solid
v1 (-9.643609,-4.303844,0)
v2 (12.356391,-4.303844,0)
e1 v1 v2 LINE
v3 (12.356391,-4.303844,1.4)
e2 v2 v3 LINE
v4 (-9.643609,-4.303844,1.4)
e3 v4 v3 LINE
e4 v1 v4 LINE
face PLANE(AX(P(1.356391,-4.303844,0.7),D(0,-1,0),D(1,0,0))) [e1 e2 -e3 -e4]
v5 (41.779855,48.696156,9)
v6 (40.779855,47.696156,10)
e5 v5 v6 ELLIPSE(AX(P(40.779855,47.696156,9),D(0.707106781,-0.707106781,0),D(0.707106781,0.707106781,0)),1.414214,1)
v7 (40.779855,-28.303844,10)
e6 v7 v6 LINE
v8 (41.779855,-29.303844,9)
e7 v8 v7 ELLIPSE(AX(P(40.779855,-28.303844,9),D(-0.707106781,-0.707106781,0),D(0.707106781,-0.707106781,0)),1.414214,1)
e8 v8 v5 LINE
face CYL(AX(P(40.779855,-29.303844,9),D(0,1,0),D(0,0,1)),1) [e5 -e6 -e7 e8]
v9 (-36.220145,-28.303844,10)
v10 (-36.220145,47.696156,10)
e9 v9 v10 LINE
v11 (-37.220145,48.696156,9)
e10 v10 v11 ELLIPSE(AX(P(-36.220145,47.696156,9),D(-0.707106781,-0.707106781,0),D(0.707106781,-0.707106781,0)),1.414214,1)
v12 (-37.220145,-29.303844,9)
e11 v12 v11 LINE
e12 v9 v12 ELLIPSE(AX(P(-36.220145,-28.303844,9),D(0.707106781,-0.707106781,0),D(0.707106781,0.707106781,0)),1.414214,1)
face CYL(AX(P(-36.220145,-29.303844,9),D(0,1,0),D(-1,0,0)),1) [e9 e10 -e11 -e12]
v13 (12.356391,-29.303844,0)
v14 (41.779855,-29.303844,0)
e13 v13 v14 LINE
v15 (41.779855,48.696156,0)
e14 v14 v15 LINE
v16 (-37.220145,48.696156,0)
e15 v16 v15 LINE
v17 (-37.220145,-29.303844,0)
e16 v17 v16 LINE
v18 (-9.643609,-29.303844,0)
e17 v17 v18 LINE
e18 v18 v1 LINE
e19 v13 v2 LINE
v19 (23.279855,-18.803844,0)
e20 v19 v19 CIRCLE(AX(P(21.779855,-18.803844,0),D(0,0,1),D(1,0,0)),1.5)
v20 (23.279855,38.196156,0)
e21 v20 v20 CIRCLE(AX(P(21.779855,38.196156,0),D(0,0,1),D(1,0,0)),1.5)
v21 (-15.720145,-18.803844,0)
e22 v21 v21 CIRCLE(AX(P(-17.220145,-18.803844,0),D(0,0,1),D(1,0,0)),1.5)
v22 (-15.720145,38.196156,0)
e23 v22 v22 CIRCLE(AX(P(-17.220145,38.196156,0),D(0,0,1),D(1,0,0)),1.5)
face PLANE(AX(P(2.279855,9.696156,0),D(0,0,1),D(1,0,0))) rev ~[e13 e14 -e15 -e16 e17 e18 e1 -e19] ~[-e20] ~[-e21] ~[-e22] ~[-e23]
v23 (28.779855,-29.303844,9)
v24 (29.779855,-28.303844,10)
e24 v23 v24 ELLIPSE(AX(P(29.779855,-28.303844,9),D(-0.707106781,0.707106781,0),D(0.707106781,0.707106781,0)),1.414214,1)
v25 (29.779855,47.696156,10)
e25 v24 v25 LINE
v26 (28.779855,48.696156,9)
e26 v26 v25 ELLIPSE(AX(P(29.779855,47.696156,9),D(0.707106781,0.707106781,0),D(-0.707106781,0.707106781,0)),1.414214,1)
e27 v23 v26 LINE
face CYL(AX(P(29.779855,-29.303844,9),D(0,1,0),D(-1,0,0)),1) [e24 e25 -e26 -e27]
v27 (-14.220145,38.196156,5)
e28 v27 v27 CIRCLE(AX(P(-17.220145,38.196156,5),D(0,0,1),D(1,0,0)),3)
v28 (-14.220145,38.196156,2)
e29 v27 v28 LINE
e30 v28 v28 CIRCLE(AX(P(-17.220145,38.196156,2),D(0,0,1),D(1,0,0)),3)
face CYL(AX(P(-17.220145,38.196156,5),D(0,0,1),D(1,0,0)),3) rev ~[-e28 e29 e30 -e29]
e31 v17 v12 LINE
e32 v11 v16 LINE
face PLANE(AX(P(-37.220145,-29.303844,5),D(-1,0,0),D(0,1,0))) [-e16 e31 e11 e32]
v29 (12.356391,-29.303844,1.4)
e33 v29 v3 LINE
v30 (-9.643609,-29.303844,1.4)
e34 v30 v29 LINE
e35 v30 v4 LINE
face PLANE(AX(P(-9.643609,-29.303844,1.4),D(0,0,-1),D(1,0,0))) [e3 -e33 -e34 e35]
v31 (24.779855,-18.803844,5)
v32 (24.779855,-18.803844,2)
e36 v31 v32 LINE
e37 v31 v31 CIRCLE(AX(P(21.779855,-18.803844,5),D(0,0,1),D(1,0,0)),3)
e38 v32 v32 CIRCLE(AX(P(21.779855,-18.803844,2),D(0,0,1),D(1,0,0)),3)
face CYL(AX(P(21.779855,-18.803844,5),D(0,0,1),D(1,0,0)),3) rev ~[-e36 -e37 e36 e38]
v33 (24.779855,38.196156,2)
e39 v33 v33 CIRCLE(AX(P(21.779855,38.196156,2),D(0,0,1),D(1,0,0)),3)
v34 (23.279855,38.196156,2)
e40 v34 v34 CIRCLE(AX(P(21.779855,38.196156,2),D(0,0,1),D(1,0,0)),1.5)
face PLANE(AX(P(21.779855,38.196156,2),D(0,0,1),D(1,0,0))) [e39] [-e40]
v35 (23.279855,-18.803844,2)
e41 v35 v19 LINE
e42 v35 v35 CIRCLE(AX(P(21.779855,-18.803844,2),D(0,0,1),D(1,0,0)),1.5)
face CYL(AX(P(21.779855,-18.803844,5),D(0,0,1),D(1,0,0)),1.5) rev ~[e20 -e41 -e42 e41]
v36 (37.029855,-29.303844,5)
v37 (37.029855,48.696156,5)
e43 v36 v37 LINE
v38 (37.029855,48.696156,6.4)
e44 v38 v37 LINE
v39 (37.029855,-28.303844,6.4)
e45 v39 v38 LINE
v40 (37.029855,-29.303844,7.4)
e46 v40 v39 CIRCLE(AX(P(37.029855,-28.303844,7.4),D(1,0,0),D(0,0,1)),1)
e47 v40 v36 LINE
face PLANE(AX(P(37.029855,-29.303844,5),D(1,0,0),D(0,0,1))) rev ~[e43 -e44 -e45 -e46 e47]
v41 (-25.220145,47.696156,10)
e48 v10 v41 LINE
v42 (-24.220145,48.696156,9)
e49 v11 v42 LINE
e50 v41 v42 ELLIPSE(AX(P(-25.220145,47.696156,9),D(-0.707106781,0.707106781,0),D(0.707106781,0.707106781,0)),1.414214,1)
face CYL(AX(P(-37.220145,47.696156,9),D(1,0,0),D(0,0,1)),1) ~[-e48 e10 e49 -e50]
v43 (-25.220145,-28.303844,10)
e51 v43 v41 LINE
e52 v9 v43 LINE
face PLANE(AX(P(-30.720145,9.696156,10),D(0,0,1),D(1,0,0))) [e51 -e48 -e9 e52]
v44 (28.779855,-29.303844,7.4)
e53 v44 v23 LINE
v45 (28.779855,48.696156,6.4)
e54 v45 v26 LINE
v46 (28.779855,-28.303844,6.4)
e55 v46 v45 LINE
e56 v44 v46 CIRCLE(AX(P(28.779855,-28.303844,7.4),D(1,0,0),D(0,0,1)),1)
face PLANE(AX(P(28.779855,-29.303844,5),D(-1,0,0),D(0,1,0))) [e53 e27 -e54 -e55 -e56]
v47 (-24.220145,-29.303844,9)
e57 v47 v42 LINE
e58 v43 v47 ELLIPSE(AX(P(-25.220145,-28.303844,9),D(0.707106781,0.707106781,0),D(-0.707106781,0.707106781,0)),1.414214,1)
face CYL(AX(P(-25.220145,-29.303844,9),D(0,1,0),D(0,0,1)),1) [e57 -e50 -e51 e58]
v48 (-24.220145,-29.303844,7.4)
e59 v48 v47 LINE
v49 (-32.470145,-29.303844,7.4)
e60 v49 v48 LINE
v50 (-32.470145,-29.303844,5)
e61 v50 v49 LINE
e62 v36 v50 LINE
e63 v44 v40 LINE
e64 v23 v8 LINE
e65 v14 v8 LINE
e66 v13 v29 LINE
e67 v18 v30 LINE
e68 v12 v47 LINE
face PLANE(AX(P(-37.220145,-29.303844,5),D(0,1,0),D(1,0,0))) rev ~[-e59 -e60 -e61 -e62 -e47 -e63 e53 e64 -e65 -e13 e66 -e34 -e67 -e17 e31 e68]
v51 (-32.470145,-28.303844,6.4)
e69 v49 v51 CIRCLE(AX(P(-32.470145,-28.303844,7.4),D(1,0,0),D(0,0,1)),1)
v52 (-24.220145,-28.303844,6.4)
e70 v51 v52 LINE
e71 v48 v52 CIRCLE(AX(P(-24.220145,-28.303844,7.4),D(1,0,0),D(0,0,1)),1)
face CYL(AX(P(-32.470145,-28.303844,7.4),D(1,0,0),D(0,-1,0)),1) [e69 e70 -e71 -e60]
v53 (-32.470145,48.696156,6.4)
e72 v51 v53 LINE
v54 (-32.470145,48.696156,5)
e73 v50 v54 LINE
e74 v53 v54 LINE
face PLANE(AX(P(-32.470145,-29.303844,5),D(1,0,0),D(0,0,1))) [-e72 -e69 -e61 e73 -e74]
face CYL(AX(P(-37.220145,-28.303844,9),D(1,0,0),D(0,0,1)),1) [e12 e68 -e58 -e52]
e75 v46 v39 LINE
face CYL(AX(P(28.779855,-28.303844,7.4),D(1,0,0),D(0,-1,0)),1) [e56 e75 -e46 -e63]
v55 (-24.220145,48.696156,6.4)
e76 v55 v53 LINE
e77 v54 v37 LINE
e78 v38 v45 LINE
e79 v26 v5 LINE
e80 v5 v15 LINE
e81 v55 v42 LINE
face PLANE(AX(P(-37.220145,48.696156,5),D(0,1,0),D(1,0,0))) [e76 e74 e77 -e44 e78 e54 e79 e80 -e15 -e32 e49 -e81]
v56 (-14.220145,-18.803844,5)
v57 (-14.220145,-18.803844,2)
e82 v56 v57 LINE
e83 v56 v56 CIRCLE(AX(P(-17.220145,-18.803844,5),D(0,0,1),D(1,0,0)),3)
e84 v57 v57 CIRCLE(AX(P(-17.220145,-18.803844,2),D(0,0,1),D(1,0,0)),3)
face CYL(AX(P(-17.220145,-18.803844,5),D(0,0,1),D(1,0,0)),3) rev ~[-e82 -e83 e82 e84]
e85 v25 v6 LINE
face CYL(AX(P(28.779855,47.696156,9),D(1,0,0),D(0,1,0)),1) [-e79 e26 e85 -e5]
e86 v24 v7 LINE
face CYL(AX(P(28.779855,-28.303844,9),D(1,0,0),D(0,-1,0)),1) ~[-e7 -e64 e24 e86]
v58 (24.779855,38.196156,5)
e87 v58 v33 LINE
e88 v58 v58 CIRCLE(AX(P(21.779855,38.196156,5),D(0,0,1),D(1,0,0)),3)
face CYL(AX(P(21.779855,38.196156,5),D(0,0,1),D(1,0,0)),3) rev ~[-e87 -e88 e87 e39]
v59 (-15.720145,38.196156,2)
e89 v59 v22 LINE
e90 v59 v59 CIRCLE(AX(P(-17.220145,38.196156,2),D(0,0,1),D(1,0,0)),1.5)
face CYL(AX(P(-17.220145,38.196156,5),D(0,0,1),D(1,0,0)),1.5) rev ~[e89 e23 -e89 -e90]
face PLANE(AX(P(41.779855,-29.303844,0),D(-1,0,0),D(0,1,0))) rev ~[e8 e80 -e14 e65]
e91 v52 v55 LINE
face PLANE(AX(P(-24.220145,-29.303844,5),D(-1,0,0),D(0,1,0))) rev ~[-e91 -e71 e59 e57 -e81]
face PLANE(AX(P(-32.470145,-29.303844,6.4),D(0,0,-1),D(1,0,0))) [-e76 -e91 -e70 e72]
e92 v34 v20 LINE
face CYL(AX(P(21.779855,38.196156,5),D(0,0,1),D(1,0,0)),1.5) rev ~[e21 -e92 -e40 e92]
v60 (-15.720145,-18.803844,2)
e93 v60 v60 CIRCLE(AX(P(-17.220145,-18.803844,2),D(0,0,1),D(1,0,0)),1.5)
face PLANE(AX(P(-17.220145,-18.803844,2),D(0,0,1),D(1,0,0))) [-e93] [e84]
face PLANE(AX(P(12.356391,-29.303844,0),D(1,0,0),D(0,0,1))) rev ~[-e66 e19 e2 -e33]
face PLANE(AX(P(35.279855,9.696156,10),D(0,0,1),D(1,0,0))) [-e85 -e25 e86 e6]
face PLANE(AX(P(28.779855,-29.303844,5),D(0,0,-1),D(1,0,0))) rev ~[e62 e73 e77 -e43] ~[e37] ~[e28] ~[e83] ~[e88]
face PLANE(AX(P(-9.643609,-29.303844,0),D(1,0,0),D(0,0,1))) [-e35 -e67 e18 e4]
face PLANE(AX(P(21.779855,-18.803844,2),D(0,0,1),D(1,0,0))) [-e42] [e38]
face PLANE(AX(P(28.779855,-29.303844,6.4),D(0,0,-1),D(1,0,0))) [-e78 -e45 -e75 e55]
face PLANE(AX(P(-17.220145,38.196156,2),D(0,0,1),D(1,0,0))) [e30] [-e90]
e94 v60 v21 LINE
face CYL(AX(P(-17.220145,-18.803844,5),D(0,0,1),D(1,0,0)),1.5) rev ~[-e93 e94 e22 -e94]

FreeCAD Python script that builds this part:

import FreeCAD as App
import Part
import Sketcher

V = App.Vector
Q = App.Units.Quantity


def edges_at(feature, points):
    """Names of the edges that pass closest to the given points."""
    edges = feature.Shape.Edges
    near = lambda p: min(range(len(edges)), key=lambda i: edges[i].distToShape(Part.Vertex(*p))[0])
    return sorted({f"Edge{near(p) + 1}" for p in points})

doc = App.newDocument("Part")
body = doc.addObject("PartDesign::Body", "Body")

# Sketch on XY plane
sketch1 = body.newObject("Sketcher::SketchObject", "Sketch")
sketch1.AttachmentSupport = (doc.getObject("XY_Plane"), [""])
sketch1.MapMode = "FlatFace"
sketch1.addGeometry([
    Part.LineSegment(V(-37, 49, 0), V(-37, -29, 0)),
    Part.LineSegment(V(-37, -29, 0), V(42, -29, 0)),
    Part.LineSegment(V(42, -29, 0), V(42, 49, 0)),
    Part.LineSegment(V(42, 49, 0), V(-37, 49, 0)),
], False)
sketch1.addConstraint([
    Sketcher.Constraint("Coincident", 0, 2, 1, 1),
    Sketcher.Constraint("Coincident", 1, 2, 2, 1),
    Sketcher.Constraint("Coincident", 2, 2, 3, 1),
    Sketcher.Constraint("Coincident", 3, 2, 0, 1),
    Sketcher.Constraint("Vertical", 0),
    Sketcher.Constraint("Horizontal", 1),
    Sketcher.Constraint("Vertical", 2),
    Sketcher.Constraint("Horizontal", 3),
    Sketcher.Constraint("DistanceX", 1, 1, 1, 2, Q("79 mm")),
    Sketcher.Constraint("DistanceY", 0, 2, 0, 1, Q("78 mm")),
    Sketcher.Constraint("DistanceX", 0, 2, -1, 1, Q("37.220145 mm")),
    Sketcher.Constraint("DistanceY", 0, 2, -1, 1, Q("29.303844 mm")),
])
pad1 = body.newObject("PartDesign::Pad", "Pad")
pad1.Profile = sketch1
pad1.Length = 5

# Sketch on XY plane
sketch2 = body.newObject("Sketcher::SketchObject", "Sketch001")
sketch2.AttachmentSupport = (doc.getObject("XY_Plane"), [""])
sketch2.MapMode = "FlatFace"
sketch2.AttachmentOffset = App.Placement(V(0, 0, 5), App.Rotation())
sketch2.addGeometry([
    Part.LineSegment(V(-37, 49, 0), V(-37, -29, 0)),  # 0
    Part.LineSegment(V(-37, -29, 0), V(-24, -29, 0)),  # 1
    Part.LineSegment(V(-24, -29, 0), V(-24, 49, 0)),  # 2
    Part.LineSegment(V(-24, 49, 0), V(-37, 49, 0)),  # 3
    Part.LineSegment(V(29, 49, 0), V(29, -29, 0)),  # 4
    Part.LineSegment(V(29, -29, 0), V(42, -29, 0)),  # 5
    Part.LineSegment(V(42, -29, 0), V(42, 49, 0)),  # 6
    Part.LineSegment(V(42, 49, 0), V(29, 49, 0)),  # 7
], False)
sketch2.addConstraint([
    Sketcher.Constraint("Coincident", 0, 2, 1, 1),
    Sketcher.Constraint("Coincident", 1, 2, 2, 1),
    Sketcher.Constraint("Coincident", 2, 2, 3, 1),
    Sketcher.Constraint("Coincident", 3, 2, 0, 1),
    Sketcher.Constraint("Coincident", 4, 2, 5, 1),
    Sketcher.Constraint("Coincident", 5, 2, 6, 1),
    Sketcher.Constraint("Coincident", 6, 2, 7, 1),
    Sketcher.Constraint("Coincident", 7, 2, 4, 1),
    Sketcher.Constraint("Vertical", 0),
    Sketcher.Constraint("Horizontal", 1),
    Sketcher.Constraint("Vertical", 2),
    Sketcher.Constraint("Horizontal", 3),
    Sketcher.Constraint("Vertical", 4),
    Sketcher.Constraint("Horizontal", 5),
    Sketcher.Constraint("Vertical", 6),
    Sketcher.Constraint("Horizontal", 7),
    Sketcher.Constraint("Horizontal", 1, 2, 4, 2),
    Sketcher.Constraint("Horizontal", 3, 2, 6, 2),
    Sketcher.Constraint("Equal", 3, 5),
    Sketcher.Constraint("DistanceX", 1, 1, 1, 2, Q("13 mm")),
    Sketcher.Constraint("DistanceY", 0, 2, 0, 1, Q("78 mm")),
    Sketcher.Constraint("DistanceX", 1, 2, 4, 2, Q("53 mm")),
    Sketcher.Constraint("DistanceX", 0, 2, -1, 1, Q("37.220145 mm")),
    Sketcher.Constraint("DistanceY", 0, 2, -1, 1, Q("29.303844 mm")),
])
pad2 = body.newObject("PartDesign::Pad", "Pad001")
pad2.Profile = sketch2
pad2.Length = 5

# Sketch on XZ plane
sketch3 = body.newObject("Sketcher::SketchObject", "Sketch002")
sketch3.AttachmentSupport = (doc.getObject("XZ_Plane"), [""])
sketch3.MapMode = "FlatFace"
sketch3.AttachmentOffset = App.Placement(V(0, 0, 29.303844), App.Rotation())
sketch3.addGeometry([
    Part.LineSegment(V(-32.5, 6.4, 0), V(-32.5, 5, 0)),  # 0
    Part.LineSegment(V(-32.5, 5, 0), V(-24.2, 5, 0)),  # 1
    Part.LineSegment(V(-24.2, 5, 0), V(-24.2, 6.4, 0)),  # 2
    Part.LineSegment(V(-24.2, 6.4, 0), V(-32.5, 6.4, 0)),  # 3
    Part.LineSegment(V(28.8, 6.4, 0), V(28.8, 5, 0)),  # 4
    Part.LineSegment(V(28.8, 5, 0), V(37, 5, 0)),  # 5
    Part.LineSegment(V(37, 5, 0), V(37, 6.4, 0)),  # 6
    Part.LineSegment(V(37, 6.4, 0), V(28.8, 6.4, 0)),  # 7
], False)
sketch3.addConstraint([
    Sketcher.Constraint("Coincident", 0, 2, 1, 1),
    Sketcher.Constraint("Coincident", 1, 2, 2, 1),
    Sketcher.Constraint("Coincident", 2, 2, 3, 1),
    Sketcher.Constraint("Coincident", 3, 2, 0, 1),
    Sketcher.Constraint("Coincident", 4, 2, 5, 1),
    Sketcher.Constraint("Coincident", 5, 2, 6, 1),
    Sketcher.Constraint("Coincident", 6, 2, 7, 1),
    Sketcher.Constraint("Coincident", 7, 2, 4, 1),
    Sketcher.Constraint("Vertical", 0),
    Sketcher.Constraint("Horizontal", 1),
    Sketcher.Constraint("Vertical", 2),
    Sketcher.Constraint("Horizontal", 3),
    Sketcher.Constraint("Vertical", 4),
    Sketcher.Constraint("Horizontal", 5),
    Sketcher.Constraint("Vertical", 6),
    Sketcher.Constraint("Horizontal", 7),
    Sketcher.Constraint("Horizontal", 1, 2, 4, 2),
    Sketcher.Constraint("Horizontal", 3, 2, 6, 2),
    Sketcher.Constraint("Equal", 3, 5),
    Sketcher.Constraint("DistanceY", 0, 2, 0, 1, Q("1.4 mm")),
    Sketcher.Constraint("DistanceY", -1, 1, 0, 2, Q("5 mm")),
    Sketcher.Constraint("DistanceX", 1, 2, 4, 2, Q("53 mm")),
    Sketcher.Constraint("DistanceX", 1, 1, 1, 2, Q("8.25 mm")),
    Sketcher.Constraint("DistanceX", 0, 2, -1, 1, Q("32.470145 mm")),
])
pocket1 = body.newObject("PartDesign::Pocket", "Pocket")
pocket1.Profile = sketch3
pocket1.Type = "ThroughAll"

# Sketch on XY plane
sketch4 = body.newObject("Sketcher::SketchObject", "Sketch003")
sketch4.AttachmentSupport = (doc.getObject("XY_Plane"), [""])
sketch4.MapMode = "FlatFace"
sketch4.AttachmentOffset = App.Placement(V(0, 0, 5), App.Rotation())
sketch4.addGeometry([
    Part.Circle(V(-17.2, 38.2, 0), V(0, 0, 1), 1.5),
    Part.Circle(V(21.8, 38.2, 0), V(0, 0, 1), 1.5),
    Part.Circle(V(-17.2, -18.8, 0), V(0, 0, 1), 1.5),
    Part.Circle(V(21.8, -18.8, 0), V(0, 0, 1), 1.5),
], False)
sketch4.addConstraint([
    Sketcher.Constraint("Equal", 0, 1),
    Sketcher.Constraint("Equal", 1, 2),
    Sketcher.Constraint("Equal", 2, 3),
    Sketcher.Constraint("Horizontal", 0, 3, 1, 3),
    Sketcher.Constraint("Horizontal", 2, 3, 3, 3),
    Sketcher.Constraint("Vertical", 0, 3, 2, 3),
    Sketcher.Constraint("Vertical", 1, 3, 3, 3),
    Sketcher.Constraint("Diameter", 0, Q("3 mm")),
    Sketcher.Constraint("DistanceX", 0, 3, 1, 3, Q("39 mm")),
    Sketcher.Constraint("DistanceY", 2, 3, 0, 3, Q("57 mm")),
    Sketcher.Constraint("DistanceX", 0, 3, -1, 1, Q("17.220145 mm")),
    Sketcher.Constraint("DistanceY", -1, 1, 0, 3, Q("38.196156 mm")),
])
pocket2 = body.newObject("PartDesign::Pocket", "Pocket001")
pocket2.Profile = sketch4
pocket2.Length = 30

# Sketch on XY plane
sketch5 = body.newObject("Sketcher::SketchObject", "Sketch004")
sketch5.AttachmentSupport = (doc.getObject("XY_Plane"), [""])
sketch5.MapMode = "FlatFace"
sketch5.AttachmentOffset = App.Placement(V(0, 0, 5), App.Rotation())
sketch5.addGeometry([
    Part.Circle(V(-17.2, 38.2, 0), V(0, 0, 1), 3),
    Part.Circle(V(21.8, 38.2, 0), V(0, 0, 1), 3),
    Part.Circle(V(-17.2, -18.8, 0), V(0, 0, 1), 3),
    Part.Circle(V(21.8, -18.8, 0), V(0, 0, 1), 3),
], False)
sketch5.addConstraint([
    Sketcher.Constraint("Equal", 0, 1),
    Sketcher.Constraint("Equal", 1, 2),
    Sketcher.Constraint("Equal", 2, 3),
    Sketcher.Constraint("Horizontal", 0, 3, 1, 3),
    Sketcher.Constraint("Horizontal", 2, 3, 3, 3),
    Sketcher.Constraint("Vertical", 0, 3, 2, 3),
    Sketcher.Constraint("Vertical", 1, 3, 3, 3),
    Sketcher.Constraint("Diameter", 0, Q("6 mm")),
    Sketcher.Constraint("DistanceX", 0, 3, 1, 3, Q("39 mm")),
    Sketcher.Constraint("DistanceY", 2, 3, 0, 3, Q("57 mm")),
    Sketcher.Constraint("DistanceX", 0, 3, -1, 1, Q("17.220145 mm")),
    Sketcher.Constraint("DistanceY", -1, 1, 0, 3, Q("38.196156 mm")),
])
pocket3 = body.newObject("PartDesign::Pocket", "Pocket002")
pocket3.Profile = sketch5
pocket3.Length = 3

# Sketch on XZ plane
sketch6 = body.newObject("Sketcher::SketchObject", "Sketch005")
sketch6.AttachmentSupport = (doc.getObject("XZ_Plane"), [""])
sketch6.MapMode = "FlatFace"
sketch6.AttachmentOffset = App.Placement(V(0, 0, 29.303844), App.Rotation())
sketch6.addGeometry([
    Part.LineSegment(V(-9.6, 1.4, 0), V(-9.6, 0, 0)),
    Part.LineSegment(V(-9.6, 0, 0), V(12.4, 0, 0)),
    Part.LineSegment(V(12.4, 0, 0), V(12.4, 1.4, 0)),
    Part.LineSegment(V(12.4, 1.4, 0), V(-9.6, 1.4, 0)),
], False)
sketch6.addConstraint([
    Sketcher.Constraint("Coincident", 0, 2, 1, 1),
    Sketcher.Constraint("Coincident", 1, 2, 2, 1),
    Sketcher.Constraint("Coincident", 2, 2, 3, 1),
    Sketcher.Constraint("Coincident", 3, 2, 0, 1),
    Sketcher.Constraint("Vertical", 0),
    Sketcher.Constraint("Horizontal", 1),
    Sketcher.Constraint("Vertical", 2),
    Sketcher.Constraint("Horizontal", 3),
    Sketcher.Constraint("PointOnObject", 0, 2, -1),
    Sketcher.Constraint("DistanceX", 1, 1, 1, 2, Q("22 mm")),
    Sketcher.Constraint("DistanceY", 0, 2, 0, 1, Q("1.4 mm")),
    Sketcher.Constraint("DistanceX", 0, 2, -1, 1, Q("9.643609 mm")),
])
pocket4 = body.newObject("PartDesign::Pocket", "Pocket003")
pocket4.Profile = sketch6
pocket4.Length = 25
doc.recompute()

fillet = body.newObject("PartDesign::Fillet", "Fillet")
fillet.Base = (pocket4, edges_at(pocket4, [
    (-24.22, 9.696, 10),
    (28.78, 9.696, 10),
    (35.28, -29.304, 10),
    (-30.72, -29.304, 10),
    (-30.72, 48.696, 10),
    (35.28, 48.696, 10),
    (32.905, -29.304, 6.4),
    (-28.345, -29.304, 6.4),
    (41.78, 9.696, 10),
    (-37.22, 9.696, 10),
]))
fillet.Radius = 1

doc.recompute()
